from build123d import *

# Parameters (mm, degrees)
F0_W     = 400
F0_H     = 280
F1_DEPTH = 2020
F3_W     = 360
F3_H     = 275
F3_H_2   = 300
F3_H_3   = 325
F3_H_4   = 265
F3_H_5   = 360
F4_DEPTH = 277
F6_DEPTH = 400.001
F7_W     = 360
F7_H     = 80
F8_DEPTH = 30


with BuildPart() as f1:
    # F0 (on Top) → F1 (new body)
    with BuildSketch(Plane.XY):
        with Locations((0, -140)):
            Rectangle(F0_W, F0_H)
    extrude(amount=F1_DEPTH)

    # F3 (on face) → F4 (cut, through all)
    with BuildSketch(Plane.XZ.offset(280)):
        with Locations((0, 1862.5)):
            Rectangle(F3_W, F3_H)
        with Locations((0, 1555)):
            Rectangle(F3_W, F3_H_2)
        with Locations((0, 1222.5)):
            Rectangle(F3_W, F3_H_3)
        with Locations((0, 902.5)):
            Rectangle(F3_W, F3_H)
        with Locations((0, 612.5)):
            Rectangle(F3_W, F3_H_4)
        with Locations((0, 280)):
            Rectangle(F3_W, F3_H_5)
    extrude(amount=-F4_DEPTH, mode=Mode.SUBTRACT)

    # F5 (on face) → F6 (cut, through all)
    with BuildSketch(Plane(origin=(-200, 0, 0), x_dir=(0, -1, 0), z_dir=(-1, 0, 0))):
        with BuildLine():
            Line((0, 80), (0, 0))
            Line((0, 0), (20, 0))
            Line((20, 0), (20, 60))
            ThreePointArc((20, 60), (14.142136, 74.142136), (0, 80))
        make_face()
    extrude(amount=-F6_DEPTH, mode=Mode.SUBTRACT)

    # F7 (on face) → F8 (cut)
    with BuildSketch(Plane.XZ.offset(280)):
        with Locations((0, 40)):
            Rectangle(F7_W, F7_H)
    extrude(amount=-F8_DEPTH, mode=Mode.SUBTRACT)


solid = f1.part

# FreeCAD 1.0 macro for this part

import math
import FreeCAD as App
import Part
import Sketcher

V = App.Vector
Q = App.Units.Quantity


def add_polygon(sketch, points):
    """Adds a closed chain of lines whose ends are joined by coincident constraints."""
    first, n = sketch.GeometryCount, len(points)
    for a, b in zip(points, points[1:] + points[:1]):
        sketch.addGeometry(Part.LineSegment(App.Vector(*a, 0), App.Vector(*b, 0)), False)
    for i in range(n):
        sketch.addConstraint(Sketcher.Constraint("Coincident", first + i, 2, first + (i + 1) % n, 1))

doc = App.newDocument("Part")
body = doc.addObject("PartDesign::Body", "Body")

# Sketch on XY plane
sketch1 = doc.addObject("Sketcher::SketchObject", "Sketch")
body.addObject(sketch1)
sketch1.AttachmentSupport = (doc.XY_Plane, [""])
sketch1.MapMode = "FlatFace"
add_polygon(sketch1, [(-200, 0), (-200, -280), (200, -280), (200, 0)])  # lines 0-3
sketch1.addConstraint([
    Sketcher.Constraint("Vertical", 0),
    Sketcher.Constraint("Horizontal", 1),
    Sketcher.Constraint("Vertical", 2),
    Sketcher.Constraint("Horizontal", 3),
    Sketcher.Constraint("Symmetric", 2, 2, 3, 2, -1, 1),
    Sketcher.Constraint("DistanceX", 1, 1, 1, 2, Q("400 mm")),
    Sketcher.Constraint("DistanceY", 0, 2, 0, 1, Q("280 mm")),
])
pad1 = doc.addObject("PartDesign::Pad", "Pad")
body.addObject(pad1)
pad1.Profile = sketch1
pad1.Length = 2020

# Sketch on XZ plane
sketch2 = doc.addObject("Sketcher::SketchObject", "Sketch001")
body.addObject(sketch2)
sketch2.AttachmentSupport = (doc.XZ_Plane, [""])
sketch2.MapMode = "FlatFace"
sketch2.AttachmentOffset = App.Placement(V(0, 0, 280), App.Rotation())
add_polygon(sketch2, [(-180, 2000), (-180, 1725), (180, 1725), (180, 2000)])  # lines 0-3
add_polygon(sketch2, [(-180, 1705), (-180, 1405), (180, 1405), (180, 1705)])  # lines 4-7
add_polygon(sketch2, [(-180, 1385), (-180, 1060), (180, 1060), (180, 1385)])  # lines 8-11
add_polygon(sketch2, [(-180, 1040), (-180, 765), (180, 765), (180, 1040)])  # lines 12-15
add_polygon(sketch2, [(-180, 745), (-180, 480), (180, 480), (180, 745)])  # lines 16-19
add_polygon(sketch2, [(-180, 460), (-180, 100), (180, 100), (180, 460)])  # lines 20-23
sketch2.addConstraint([
    Sketcher.Constraint("Vertical", 0),
    Sketcher.Constraint("Horizontal", 1),
    Sketcher.Constraint("Vertical", 2),
    Sketcher.Constraint("Horizontal", 3),
    Sketcher.Constraint("Vertical", 4),
    Sketcher.Constraint("Horizontal", 5),
    Sketcher.Constraint("Vertical", 6),
    Sketcher.Constraint("Horizontal", 7),
    Sketcher.Constraint("Vertical", 8),
    Sketcher.Constraint("Horizontal", 9),
    Sketcher.Constraint("Vertical", 10),
    Sketcher.Constraint("Horizontal", 11),
    Sketcher.Constraint("Vertical", 12),
    Sketcher.Constraint("Horizontal", 13),
    Sketcher.Constraint("Vertical", 14),
    Sketcher.Constraint("Horizontal", 15),
    Sketcher.Constraint("Vertical", 16),
    Sketcher.Constraint("Horizontal", 17),
    Sketcher.Constraint("Vertical", 18),
    Sketcher.Constraint("Horizontal", 19),
    Sketcher.Constraint("Vertical", 20),
    Sketcher.Constraint("Horizontal", 21),
    Sketcher.Constraint("Vertical", 22),
    Sketcher.Constraint("Horizontal", 23),
    Sketcher.Constraint("Vertical", 3, 2, 4, 2),
    Sketcher.Constraint("Vertical", 2, 2, 5, 2),
    Sketcher.Constraint("Vertical", 7, 2, 8, 2),
    Sketcher.Constraint("Vertical", 6, 2, 9, 2),
    Sketcher.Constraint("Vertical", 11, 2, 12, 2),
    Sketcher.Constraint("Vertical", 10, 2, 13, 2),
    Sketcher.Constraint("Vertical", 15, 2, 16, 2),
    Sketcher.Constraint("Vertical", 14, 2, 17, 2),
    Sketcher.Constraint("Vertical", 19, 2, 20, 2),
    Sketcher.Constraint("Vertical", 18, 2, 21, 2),
    Sketcher.Constraint("Equal", 2, 12),
    Sketcher.Constraint("Equal", 23, 20),
    Sketcher.Constraint("DistanceX", 1, 1, 1, 2, Q("360 mm")),
    Sketcher.Constraint("DistanceY", 0, 2, 0, 1, Q("275 mm")),
    Sketcher.Constraint("DistanceY", 4, 2, 4, 1, Q("300 mm")),
    Sketcher.Constraint("DistanceY", 8, 2, 8, 1, Q("325 mm")),
    Sketcher.Constraint("DistanceY", 16, 2, 16, 1, Q("265 mm")),
    Sketcher.Constraint("DistanceX", 0, 2, -1, 1, Q("180 mm")),
    Sketcher.Constraint("DistanceY", -1, 1, 0, 2, Q("1725 mm")),
    Sketcher.Constraint("DistanceY", -1, 1, 4, 2, Q("1405 mm")),
    Sketcher.Constraint("DistanceY", -1, 1, 8, 2, Q("1060 mm")),
    Sketcher.Constraint("DistanceY", -1, 1, 12, 2, Q("765 mm")),
    Sketcher.Constraint("DistanceY", -1, 1, 16, 2, Q("480 mm")),
    Sketcher.Constraint("DistanceY", -1, 1, 20, 2, Q("100 mm")),
])
pocket1 = doc.addObject("PartDesign::Pocket", "Pocket")
body.addObject(pocket1)
pocket1.Profile = sketch2
pocket1.Length = 277

# Sketch on YZ plane
sketch3 = doc.addObject("Sketcher::SketchObject", "Sketch002")
body.addObject(sketch3)
sketch3.AttachmentSupport = (doc.YZ_Plane, [""])
sketch3.MapMode = "FlatFace"
sketch3.AttachmentOffset = App.Placement(V(0, 0, -200), App.Rotation())
sketch3.addGeometry([
    Part.LineSegment(V(0, 80, 0), V(0, 0, 0)),
    Part.LineSegment(V(0, 0, 0), V(-20, 0, 0)),
    Part.LineSegment(V(-20, 0, 0), V(-20, 60, 0)),
    Part.ArcOfCircle(Part.Circle(V(-0.000001, 60.000001, 0), V(0, 0, 1), 19.999999), math.radians(89.999996), math.radians(180.000004)),
], False)
sketch3.addConstraint([
    Sketcher.Constraint("Coincident", 0, 2, 1, 1),
    Sketcher.Constraint("Coincident", 1, 2, 2, 1),
    Sketcher.Constraint("Tangent", 2, 2, 3, 2),
    Sketcher.Constraint("Coincident", 3, 1, 0, 1),
    Sketcher.Constraint("Vertical", 0),
    Sketcher.Constraint("Horizontal", 1),
    Sketcher.Constraint("Vertical", 2),
    Sketcher.Constraint("Coincident", 0, 2, -1, 1),
    Sketcher.Constraint("PointOnObject", 3, 3, -2),
    Sketcher.Constraint("Radius", 3, Q("19.999999 mm")),
    Sketcher.Constraint("DistanceY", 0, 2, 0, 1, Q("80 mm")),
])
pocket2 = doc.addObject("PartDesign::Pocket", "Pocket001")
body.addObject(pocket2)
pocket2.Profile = sketch3
pocket2.Type = "ThroughAll"
pocket2.Reversed = True

# Sketch on XZ plane
sketch4 = doc.addObject("Sketcher::SketchObject", "Sketch003")
body.addObject(sketch4)
sketch4.AttachmentSupport = (doc.XZ_Plane, [""])
sketch4.MapMode = "FlatFace"
sketch4.AttachmentOffset = App.Placement(V(0, 0, 280), App.Rotation())
add_polygon(sketch4, [(-180, 80), (-180, 0), (180, 0), (180, 80)])  # lines 0-3
sketch4.addConstraint([
    Sketcher.Constraint("Vertical", 0),
    Sketcher.Constraint("Horizontal", 1),
    Sketcher.Constraint("Vertical", 2),
    Sketcher.Constraint("Horizontal", 3),
    Sketcher.Constraint("Symmetric", 0, 2, 1, 2, -1, 1),
    Sketcher.Constraint("DistanceX", 1, 1, 1, 2, Q("360 mm")),
    Sketcher.Constraint("DistanceY", 0, 2, 0, 1, Q("80 mm")),
])
pocket3 = doc.addObject("PartDesign::Pocket", "Pocket002")
body.addObject(pocket3)
pocket3.Profile = sketch4
pocket3.Length = 30

doc.recompute()
